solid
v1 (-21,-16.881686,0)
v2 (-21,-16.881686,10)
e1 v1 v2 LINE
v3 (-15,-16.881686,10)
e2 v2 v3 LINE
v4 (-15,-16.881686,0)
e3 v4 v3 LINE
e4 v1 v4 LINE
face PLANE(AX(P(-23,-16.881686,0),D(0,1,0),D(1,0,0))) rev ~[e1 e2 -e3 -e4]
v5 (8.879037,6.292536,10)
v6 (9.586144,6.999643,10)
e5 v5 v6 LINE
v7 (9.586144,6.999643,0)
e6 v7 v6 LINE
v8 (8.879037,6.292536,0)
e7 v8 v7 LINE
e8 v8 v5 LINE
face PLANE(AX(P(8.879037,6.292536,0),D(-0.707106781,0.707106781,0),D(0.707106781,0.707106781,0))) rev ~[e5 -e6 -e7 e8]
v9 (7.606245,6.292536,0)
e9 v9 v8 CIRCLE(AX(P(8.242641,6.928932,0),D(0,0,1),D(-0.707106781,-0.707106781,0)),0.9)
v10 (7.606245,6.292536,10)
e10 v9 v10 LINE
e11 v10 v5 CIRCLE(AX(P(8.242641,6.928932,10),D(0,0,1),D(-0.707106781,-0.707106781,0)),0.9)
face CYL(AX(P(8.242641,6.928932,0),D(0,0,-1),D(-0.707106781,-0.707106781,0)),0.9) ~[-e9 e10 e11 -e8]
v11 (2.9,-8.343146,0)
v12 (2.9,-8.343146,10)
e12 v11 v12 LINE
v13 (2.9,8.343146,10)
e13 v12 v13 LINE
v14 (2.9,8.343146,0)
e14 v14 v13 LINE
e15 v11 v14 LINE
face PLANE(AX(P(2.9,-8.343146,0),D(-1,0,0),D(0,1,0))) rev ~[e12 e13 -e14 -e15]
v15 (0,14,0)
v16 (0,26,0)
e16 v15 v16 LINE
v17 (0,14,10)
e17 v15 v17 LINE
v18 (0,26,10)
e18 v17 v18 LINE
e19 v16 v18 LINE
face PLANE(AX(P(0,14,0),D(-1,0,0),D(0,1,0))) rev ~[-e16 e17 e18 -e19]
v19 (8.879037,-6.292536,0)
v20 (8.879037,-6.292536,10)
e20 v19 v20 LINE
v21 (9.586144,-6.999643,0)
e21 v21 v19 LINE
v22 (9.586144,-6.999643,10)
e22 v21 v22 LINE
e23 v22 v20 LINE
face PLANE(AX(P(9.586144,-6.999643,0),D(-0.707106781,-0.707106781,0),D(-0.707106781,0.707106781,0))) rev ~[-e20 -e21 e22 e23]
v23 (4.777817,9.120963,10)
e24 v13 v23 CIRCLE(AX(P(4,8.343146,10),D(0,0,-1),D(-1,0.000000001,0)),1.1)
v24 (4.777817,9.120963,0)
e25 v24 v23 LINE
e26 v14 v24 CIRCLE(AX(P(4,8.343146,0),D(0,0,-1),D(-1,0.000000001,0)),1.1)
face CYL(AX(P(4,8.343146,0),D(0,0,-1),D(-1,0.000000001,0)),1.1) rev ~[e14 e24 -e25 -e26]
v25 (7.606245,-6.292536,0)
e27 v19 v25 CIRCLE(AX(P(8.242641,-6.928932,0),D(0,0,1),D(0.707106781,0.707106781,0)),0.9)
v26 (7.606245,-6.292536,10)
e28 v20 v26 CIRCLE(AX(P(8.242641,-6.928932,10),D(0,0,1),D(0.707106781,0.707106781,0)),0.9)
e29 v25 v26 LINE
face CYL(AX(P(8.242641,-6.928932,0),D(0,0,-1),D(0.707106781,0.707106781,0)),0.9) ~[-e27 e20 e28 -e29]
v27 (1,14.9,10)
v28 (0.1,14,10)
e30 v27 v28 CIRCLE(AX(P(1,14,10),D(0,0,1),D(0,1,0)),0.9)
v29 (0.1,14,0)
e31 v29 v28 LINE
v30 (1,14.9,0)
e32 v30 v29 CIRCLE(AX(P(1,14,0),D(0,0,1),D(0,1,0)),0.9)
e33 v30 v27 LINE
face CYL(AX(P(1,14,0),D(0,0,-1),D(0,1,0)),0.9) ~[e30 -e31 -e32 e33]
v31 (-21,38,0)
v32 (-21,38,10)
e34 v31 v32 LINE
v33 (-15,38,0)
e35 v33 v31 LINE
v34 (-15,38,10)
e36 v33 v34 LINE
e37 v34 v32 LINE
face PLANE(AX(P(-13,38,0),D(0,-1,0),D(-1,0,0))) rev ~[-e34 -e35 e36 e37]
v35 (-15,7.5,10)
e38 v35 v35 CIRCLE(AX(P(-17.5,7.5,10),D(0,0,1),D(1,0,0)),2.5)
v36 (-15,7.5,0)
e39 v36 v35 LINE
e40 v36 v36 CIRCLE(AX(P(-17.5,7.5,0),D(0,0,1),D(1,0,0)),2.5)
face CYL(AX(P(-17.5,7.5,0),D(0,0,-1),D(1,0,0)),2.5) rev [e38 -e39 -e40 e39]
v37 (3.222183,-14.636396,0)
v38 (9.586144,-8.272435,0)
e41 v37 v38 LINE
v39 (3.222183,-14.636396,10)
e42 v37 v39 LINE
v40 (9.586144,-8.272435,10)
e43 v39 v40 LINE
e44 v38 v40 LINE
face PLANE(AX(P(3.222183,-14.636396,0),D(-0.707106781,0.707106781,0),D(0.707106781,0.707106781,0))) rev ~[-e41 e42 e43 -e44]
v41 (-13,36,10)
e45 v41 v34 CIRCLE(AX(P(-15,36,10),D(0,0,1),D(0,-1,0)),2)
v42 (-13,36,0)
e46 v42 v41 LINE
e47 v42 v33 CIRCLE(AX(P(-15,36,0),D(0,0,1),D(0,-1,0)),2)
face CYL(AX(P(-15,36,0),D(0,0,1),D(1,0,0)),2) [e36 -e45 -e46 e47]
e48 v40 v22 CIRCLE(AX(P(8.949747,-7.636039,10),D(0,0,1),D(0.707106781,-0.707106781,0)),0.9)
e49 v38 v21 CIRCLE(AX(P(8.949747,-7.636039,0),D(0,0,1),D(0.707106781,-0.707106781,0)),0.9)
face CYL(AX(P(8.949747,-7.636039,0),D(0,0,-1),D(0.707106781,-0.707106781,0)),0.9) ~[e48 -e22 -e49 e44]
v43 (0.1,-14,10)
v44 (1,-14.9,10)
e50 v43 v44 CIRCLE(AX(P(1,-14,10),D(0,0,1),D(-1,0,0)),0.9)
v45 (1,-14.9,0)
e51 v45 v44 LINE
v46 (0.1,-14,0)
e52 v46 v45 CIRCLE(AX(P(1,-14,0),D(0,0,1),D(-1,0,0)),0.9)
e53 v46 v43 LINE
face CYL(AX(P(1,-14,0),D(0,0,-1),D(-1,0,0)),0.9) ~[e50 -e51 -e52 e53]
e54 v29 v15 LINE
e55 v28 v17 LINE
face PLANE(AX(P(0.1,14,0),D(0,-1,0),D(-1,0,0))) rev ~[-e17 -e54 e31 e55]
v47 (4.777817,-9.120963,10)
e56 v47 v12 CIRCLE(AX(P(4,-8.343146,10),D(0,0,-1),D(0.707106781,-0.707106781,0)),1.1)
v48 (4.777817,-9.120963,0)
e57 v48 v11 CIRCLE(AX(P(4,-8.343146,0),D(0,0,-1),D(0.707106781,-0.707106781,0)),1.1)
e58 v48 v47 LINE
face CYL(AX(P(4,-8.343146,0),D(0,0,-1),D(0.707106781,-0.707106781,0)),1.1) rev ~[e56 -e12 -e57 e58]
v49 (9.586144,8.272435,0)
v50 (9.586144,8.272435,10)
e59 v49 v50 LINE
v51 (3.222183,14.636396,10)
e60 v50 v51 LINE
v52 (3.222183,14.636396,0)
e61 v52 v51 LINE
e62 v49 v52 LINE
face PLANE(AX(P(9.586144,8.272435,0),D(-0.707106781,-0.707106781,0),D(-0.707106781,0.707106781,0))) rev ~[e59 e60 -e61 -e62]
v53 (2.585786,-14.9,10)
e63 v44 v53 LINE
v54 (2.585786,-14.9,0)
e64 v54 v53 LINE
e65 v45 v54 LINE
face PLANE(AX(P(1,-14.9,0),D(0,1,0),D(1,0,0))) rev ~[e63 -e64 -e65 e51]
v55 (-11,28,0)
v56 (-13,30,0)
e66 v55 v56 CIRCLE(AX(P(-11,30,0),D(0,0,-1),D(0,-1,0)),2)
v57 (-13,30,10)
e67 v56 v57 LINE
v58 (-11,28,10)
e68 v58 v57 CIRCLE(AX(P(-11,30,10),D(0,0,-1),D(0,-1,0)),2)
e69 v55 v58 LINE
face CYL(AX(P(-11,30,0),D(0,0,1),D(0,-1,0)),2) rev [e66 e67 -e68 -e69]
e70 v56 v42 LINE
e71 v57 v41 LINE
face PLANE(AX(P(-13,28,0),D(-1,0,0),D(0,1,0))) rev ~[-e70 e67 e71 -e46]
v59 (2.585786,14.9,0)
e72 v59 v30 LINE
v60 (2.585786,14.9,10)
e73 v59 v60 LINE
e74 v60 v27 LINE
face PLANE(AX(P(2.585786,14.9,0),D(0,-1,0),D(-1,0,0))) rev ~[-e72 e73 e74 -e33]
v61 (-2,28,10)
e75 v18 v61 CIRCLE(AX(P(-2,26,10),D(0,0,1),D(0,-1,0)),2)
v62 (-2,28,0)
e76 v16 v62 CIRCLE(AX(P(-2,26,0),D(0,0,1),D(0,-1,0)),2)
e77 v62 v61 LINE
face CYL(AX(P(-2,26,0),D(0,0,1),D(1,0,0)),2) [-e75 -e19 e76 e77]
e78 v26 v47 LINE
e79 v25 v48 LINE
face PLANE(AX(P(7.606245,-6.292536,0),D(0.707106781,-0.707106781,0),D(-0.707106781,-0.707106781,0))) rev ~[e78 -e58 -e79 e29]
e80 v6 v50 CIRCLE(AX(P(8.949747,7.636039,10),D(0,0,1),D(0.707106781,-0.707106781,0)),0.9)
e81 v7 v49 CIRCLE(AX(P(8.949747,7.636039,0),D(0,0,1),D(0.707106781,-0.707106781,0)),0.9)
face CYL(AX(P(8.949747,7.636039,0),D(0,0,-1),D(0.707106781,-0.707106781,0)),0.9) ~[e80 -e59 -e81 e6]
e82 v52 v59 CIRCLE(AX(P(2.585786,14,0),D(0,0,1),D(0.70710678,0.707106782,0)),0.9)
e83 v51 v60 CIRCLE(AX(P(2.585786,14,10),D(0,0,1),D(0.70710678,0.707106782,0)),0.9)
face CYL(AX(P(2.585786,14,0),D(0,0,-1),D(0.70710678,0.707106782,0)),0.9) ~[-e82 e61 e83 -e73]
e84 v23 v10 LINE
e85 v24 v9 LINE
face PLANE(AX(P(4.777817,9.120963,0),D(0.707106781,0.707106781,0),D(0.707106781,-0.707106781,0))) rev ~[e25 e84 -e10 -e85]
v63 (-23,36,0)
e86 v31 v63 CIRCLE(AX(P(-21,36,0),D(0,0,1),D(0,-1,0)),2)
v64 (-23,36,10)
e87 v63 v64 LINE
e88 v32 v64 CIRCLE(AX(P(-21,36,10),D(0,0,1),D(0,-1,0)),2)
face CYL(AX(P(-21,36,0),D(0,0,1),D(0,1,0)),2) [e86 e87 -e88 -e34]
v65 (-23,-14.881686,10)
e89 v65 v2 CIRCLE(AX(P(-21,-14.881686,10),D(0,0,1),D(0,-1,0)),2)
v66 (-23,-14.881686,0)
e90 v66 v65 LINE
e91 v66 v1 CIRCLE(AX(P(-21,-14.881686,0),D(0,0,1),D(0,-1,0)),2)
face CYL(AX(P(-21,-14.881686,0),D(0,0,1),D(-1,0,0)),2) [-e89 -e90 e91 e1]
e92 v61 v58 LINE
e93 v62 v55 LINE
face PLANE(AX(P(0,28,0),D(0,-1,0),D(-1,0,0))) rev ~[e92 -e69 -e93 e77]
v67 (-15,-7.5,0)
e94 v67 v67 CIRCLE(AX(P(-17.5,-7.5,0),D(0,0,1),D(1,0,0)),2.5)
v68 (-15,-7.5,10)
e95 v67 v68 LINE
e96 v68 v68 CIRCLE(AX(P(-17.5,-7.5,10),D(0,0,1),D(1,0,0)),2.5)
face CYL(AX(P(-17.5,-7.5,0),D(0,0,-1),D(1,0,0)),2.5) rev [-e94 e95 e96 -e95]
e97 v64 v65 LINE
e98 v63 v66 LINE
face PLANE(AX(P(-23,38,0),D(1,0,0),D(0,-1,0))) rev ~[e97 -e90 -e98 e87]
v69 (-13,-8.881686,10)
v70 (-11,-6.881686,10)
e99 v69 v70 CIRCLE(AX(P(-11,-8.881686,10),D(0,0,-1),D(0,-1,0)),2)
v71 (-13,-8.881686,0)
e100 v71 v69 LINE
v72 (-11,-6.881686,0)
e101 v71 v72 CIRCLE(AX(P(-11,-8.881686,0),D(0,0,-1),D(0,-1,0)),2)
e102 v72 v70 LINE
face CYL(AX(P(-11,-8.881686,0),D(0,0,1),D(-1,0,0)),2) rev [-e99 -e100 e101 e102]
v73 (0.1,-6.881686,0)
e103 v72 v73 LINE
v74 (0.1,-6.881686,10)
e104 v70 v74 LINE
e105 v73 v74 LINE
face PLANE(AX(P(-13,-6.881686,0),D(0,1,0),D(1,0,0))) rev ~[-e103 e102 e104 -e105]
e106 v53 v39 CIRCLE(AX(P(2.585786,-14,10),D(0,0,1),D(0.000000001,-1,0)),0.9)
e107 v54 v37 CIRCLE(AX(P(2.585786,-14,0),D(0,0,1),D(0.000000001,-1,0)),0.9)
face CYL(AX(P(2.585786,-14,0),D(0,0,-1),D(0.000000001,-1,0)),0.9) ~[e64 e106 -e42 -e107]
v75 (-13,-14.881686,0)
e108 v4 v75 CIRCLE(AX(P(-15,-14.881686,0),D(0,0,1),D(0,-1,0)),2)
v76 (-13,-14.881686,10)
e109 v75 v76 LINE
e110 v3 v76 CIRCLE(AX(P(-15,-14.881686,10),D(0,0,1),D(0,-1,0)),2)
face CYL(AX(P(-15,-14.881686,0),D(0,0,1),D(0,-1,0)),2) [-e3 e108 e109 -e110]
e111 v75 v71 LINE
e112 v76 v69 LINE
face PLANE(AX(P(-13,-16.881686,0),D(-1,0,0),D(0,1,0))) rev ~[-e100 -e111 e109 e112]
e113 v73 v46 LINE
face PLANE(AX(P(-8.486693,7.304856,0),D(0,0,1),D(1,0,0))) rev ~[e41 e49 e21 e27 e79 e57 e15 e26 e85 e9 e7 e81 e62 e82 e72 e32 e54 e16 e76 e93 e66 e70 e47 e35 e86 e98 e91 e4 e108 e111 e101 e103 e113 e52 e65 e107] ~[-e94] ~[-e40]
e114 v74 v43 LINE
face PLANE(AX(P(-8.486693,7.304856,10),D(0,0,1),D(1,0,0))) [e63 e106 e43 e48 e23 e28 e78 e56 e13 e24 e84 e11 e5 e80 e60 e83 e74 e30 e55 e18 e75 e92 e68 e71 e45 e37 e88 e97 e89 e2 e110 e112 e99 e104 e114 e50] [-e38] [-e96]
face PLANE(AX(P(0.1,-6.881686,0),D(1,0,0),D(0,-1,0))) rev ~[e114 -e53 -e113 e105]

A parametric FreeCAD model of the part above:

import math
import FreeCAD as App
import Part
import Sketcher


def edges_at(feature, points):
    """Names of the edges that pass closest to the given points."""
    edges = feature.Shape.Edges
    near = lambda p: min(range(len(edges)), key=lambda i: edges[i].distToShape(Part.Vertex(*p))[0])
    return sorted({f"Edge{near(p) + 1}" for p in points})

doc = App.newDocument("Part")
params = doc.addObject("Spreadsheet::Sheet", "Params")
for row, (alias, value) in enumerate([
    ("sketch1_diameter", "5 mm"),
    ("sketch1_radius", "0.9 mm"),
    ("sketch1_radius2", "1.1 mm"),
    ("sketch1_width", "13 mm"),
    ("sketch1_width2", "10 mm"),
    ("pad1_length", "10 mm"),
    ("fillet_radius", "2 mm"),
], start=1):
    params.set(f"A{row}", alias)
    params.set(f"B{row}", "=" + value)
    params.setAlias(f"B{row}", alias)

body = doc.addObject("PartDesign::Body", "Body")

# Sketch on XY plane
sketch1 = doc.addObject("Sketcher::SketchObject", "Sketch")
body.addObject(sketch1)
sketch1.AttachmentSupport = (doc.XY_Plane, [""])
sketch1.MapMode = "FlatFace"
sketch1.addGeometry(Part.LineSegment(App.Vector(0.1, 14, 0), App.Vector(0, 14, 0)), False)
sketch1.addGeometry(Part.LineSegment(App.Vector(0, 14, 0), App.Vector(0, 28, 0)), False)
sketch1.addGeometry(Part.LineSegment(App.Vector(0, 28, 0), App.Vector(-13, 28, 0)), False)
sketch1.addGeometry(Part.LineSegment(App.Vector(-13, 28, 0), App.Vector(-13, 38, 0)), False)
sketch1.addGeometry(Part.LineSegment(App.Vector(-13, 38, 0), App.Vector(-23, 38, 0)), False)
sketch1.addGeometry(Part.LineSegment(App.Vector(-23, 38, 0), App.Vector(-23, -16.88, 0)), False)
sketch1.addGeometry(Part.LineSegment(App.Vector(-23, -16.88, 0), App.Vector(-13, -16.88, 0)), False)
sketch1.addGeometry(Part.LineSegment(App.Vector(-13, -16.88, 0), App.Vector(-13, -6.88, 0)), False)
sketch1.addGeometry(Part.LineSegment(App.Vector(-13, -6.88, 0), App.Vector(0.1, -6.88, 0)), False)
sketch1.addGeometry(Part.LineSegment(App.Vector(0.1, -6.88, 0), App.Vector(0.1, -14, 0)), False)
sketch1.addGeometry(Part.ArcOfCircle(Part.Circle(App.Vector(1, -14, 0), App.Vector(0, 0, 1), 0.9), math.radians(180), math.radians(270)), False)
sketch1.addGeometry(Part.LineSegment(App.Vector(1, -14.9, 0), App.Vector(2.59, -14.9, 0)), False)
sketch1.addGeometry(Part.ArcOfCircle(Part.Circle(App.Vector(2.59, -14, 0), App.Vector(0, 0, 1), 0.9), math.radians(-90), math.radians(-45)), False)
sketch1.addGeometry(Part.LineSegment(App.Vector(3.22, -14.64, 0), App.Vector(9.59, -8.27, 0)), False)
sketch1.addGeometry(Part.ArcOfCircle(Part.Circle(App.Vector(8.95, -7.64, 0), App.Vector(0, 0, 1), 0.9), math.radians(-45), math.radians(45)), False)
sketch1.addGeometry(Part.LineSegment(App.Vector(9.59, -7, 0), App.Vector(8.88, -6.29, 0)), False)
sketch1.addGeometry(Part.ArcOfCircle(Part.Circle(App.Vector(8.24, -6.93, 0), App.Vector(0, 0, 1), 0.9), math.radians(45), math.radians(135)), False)
sketch1.addGeometry(Part.LineSegment(App.Vector(7.61, -6.29, 0), App.Vector(4.78, -9.12, 0)), False)
sketch1.addGeometry(Part.ArcOfCircle(Part.Circle(App.Vector(4, -8.34, 0), App.Vector(0, 0, 1), 1.1), math.radians(-180), math.radians(-45)), False)
sketch1.addGeometry(Part.LineSegment(App.Vector(2.9, -8.34, 0), App.Vector(2.9, 8.34, 0)), False)
sketch1.addGeometry(Part.ArcOfCircle(Part.Circle(App.Vector(4, 8.34, 0), App.Vector(0, 0, 1), 1.1), math.radians(45), math.radians(180)), False)
sketch1.addGeometry(Part.LineSegment(App.Vector(4.78, 9.12, 0), App.Vector(7.61, 6.29, 0)), False)
sketch1.addGeometry(Part.ArcOfCircle(Part.Circle(App.Vector(8.24, 6.93, 0), App.Vector(0, 0, 1), 0.9), math.radians(-135), math.radians(-45)), False)
sketch1.addGeometry(Part.LineSegment(App.Vector(8.88, 6.29, 0), App.Vector(9.59, 7, 0)), False)
sketch1.addGeometry(Part.ArcOfCircle(Part.Circle(App.Vector(8.95, 7.64, 0), App.Vector(0, 0, 1), 0.9), math.radians(-45), math.radians(45)), False)
sketch1.addGeometry(Part.LineSegment(App.Vector(9.59, 8.27, 0), App.Vector(3.22, 14.64, 0)), False)
sketch1.addGeometry(Part.ArcOfCircle(Part.Circle(App.Vector(2.59, 14, 0), App.Vector(0, 0, 1), 0.9), math.radians(45), math.radians(90)), False)
sketch1.addGeometry(Part.LineSegment(App.Vector(2.59, 14.9, 0), App.Vector(1, 14.9, 0)), False)
sketch1.addGeometry(Part.ArcOfCircle(Part.Circle(App.Vector(1, 14, 0), App.Vector(0, 0, 1), 0.9), math.radians(90), math.radians(180)), False)
sketch1.addGeometry(Part.Circle(App.Vector(-17.5, -7.5, 0), App.Vector(0, 0, 1), 2.5), False)
sketch1.addGeometry(Part.Circle(App.Vector(-17.5, 7.5, 0), App.Vector(0, 0, 1), 2.5), False)
sketch1.addConstraint(Sketcher.Constraint("Coincident", 0, 2, 1, 1))
sketch1.addConstraint(Sketcher.Constraint("Coincident", 1, 2, 2, 1))
sketch1.addConstraint(Sketcher.Constraint("Coincident", 2, 2, 3, 1))
sketch1.addConstraint(Sketcher.Constraint("Coincident", 3, 2, 4, 1))
sketch1.addConstraint(Sketcher.Constraint("Coincident", 4, 2, 5, 1))
sketch1.addConstraint(Sketcher.Constraint("Coincident", 5, 2, 6, 1))
sketch1.addConstraint(Sketcher.Constraint("Coincident", 6, 2, 7, 1))
sketch1.addConstraint(Sketcher.Constraint("Coincident", 7, 2, 8, 1))
sketch1.addConstraint(Sketcher.Constraint("Coincident", 8, 2, 9, 1))
sketch1.addConstraint(Sketcher.Constraint("Tangent", 9, 2, 10, 1))
sketch1.addConstraint(Sketcher.Constraint("Tangent", 10, 2, 11, 1))
sketch1.addConstraint(Sketcher.Constraint("Tangent", 11, 2, 12, 1))
sketch1.addConstraint(Sketcher.Constraint("Tangent", 12, 2, 13, 1))
sketch1.addConstraint(Sketcher.Constraint("Tangent", 13, 2, 14, 1))
sketch1.addConstraint(Sketcher.Constraint("Tangent", 14, 2, 15, 1))
sketch1.addConstraint(Sketcher.Constraint("Tangent", 15, 2, 16, 1))
sketch1.addConstraint(Sketcher.Constraint("Tangent", 16, 2, 17, 1))
sketch1.addConstraint(Sketcher.Constraint("Tangent", 17, 2, 18, 2))
sketch1.addConstraint(Sketcher.Constraint("Tangent", 18, 1, 19, 1))
sketch1.addConstraint(Sketcher.Constraint("Tangent", 19, 2, 20, 2))
sketch1.addConstraint(Sketcher.Constraint("Tangent", 20, 1, 21, 1))
sketch1.addConstraint(Sketcher.Constraint("Tangent", 21, 2, 22, 1))
sketch1.addConstraint(Sketcher.Constraint("Tangent", 22, 2, 23, 1))
sketch1.addConstraint(Sketcher.Constraint("Tangent", 23, 2, 24, 1))
sketch1.addConstraint(Sketcher.Constraint("Tangent", 24, 2, 25, 1))
sketch1.addConstraint(Sketcher.Constraint("Tangent", 25, 2, 26, 1))
sketch1.addConstraint(Sketcher.Constraint("Tangent", 26, 2, 27, 1))
sketch1.addConstraint(Sketcher.Constraint("Tangent", 27, 2, 28, 1))
sketch1.addConstraint(Sketcher.Constraint("Coincident", 28, 2, 0, 1))
sketch1.addConstraint(Sketcher.Constraint("Horizontal", 0))
sketch1.addConstraint(Sketcher.Constraint("Vertical", 1))
sketch1.addConstraint(Sketcher.Constraint("Horizontal", 2))
sketch1.addConstraint(Sketcher.Constraint("Vertical", 3))
sketch1.addConstraint(Sketcher.Constraint("Horizontal", 4))
sketch1.addConstraint(Sketcher.Constraint("Vertical", 5))
sketch1.addConstraint(Sketcher.Constraint("Horizontal", 6))
sketch1.addConstraint(Sketcher.Constraint("Vertical", 7))
sketch1.addConstraint(Sketcher.Constraint("Horizontal", 8))
sketch1.addConstraint(Sketcher.Constraint("Vertical", 9))
sketch1.addConstraint(Sketcher.Constraint("Horizontal", 11))
sketch1.addConstraint(Sketcher.Constraint("Vertical", 19))
sketch1.addConstraint(Sketcher.Constraint("Horizontal", 27))
sketch1.addConstraint(Sketcher.Constraint("Equal", 10, 12))
sketch1.addConstraint(Sketcher.Constraint("Equal", 12, 14))
sketch1.addConstraint(Sketcher.Constraint("Equal", 14, 16))
sketch1.addConstraint(Sketcher.Constraint("Equal", 18, 20))
sketch1.addConstraint(Sketcher.Constraint("Equal", 16, 22))
sketch1.addConstraint(Sketcher.Constraint("Equal", 22, 24))
sketch1.addConstraint(Sketcher.Constraint("Equal", 24, 26))
sketch1.addConstraint(Sketcher.Constraint("Equal", 26, 28))
sketch1.addConstraint(Sketcher.Constraint("Equal", 29, 30))
sketch1.addConstraint(Sketcher.Constraint("Symmetric", 16, 3, 22, 3, -1))
sketch1.addConstraint(Sketcher.Constraint("Symmetric", 14, 3, 24, 3, -1))
sketch1.addConstraint(Sketcher.Constraint("Symmetric", 12, 3, 26, 3, -1))
sketch1.addConstraint(Sketcher.Constraint("Symmetric", 29, 3, 30, 3, -1))
sketch1.addConstraint(Sketcher.Constraint("Symmetric", 9, 2, 28, 2, -1))
sketch1.addConstraint(Sketcher.Constraint("PointOnObject", 0, 2, -2))
sketch1.addConstraint(Sketcher.Constraint("Perpendicular", 13, 15))
sketch1.addConstraint(Sketcher.Constraint("Perpendicular", 15, 17))
sketch1.addConstraint(Sketcher.Constraint("Perpendicular", 17, 21))
sketch1.addConstraint(Sketcher.Constraint("Perpendicular", 21, 23))
sketch1.addConstraint(Sketcher.Constraint("Vertical", 3, 2, 6, 2))
sketch1.addConstraint(Sketcher.Constraint("Equal", 6, 3))
sketch1.addConstraint(Sketcher.Constraint("Equal", 3, 7))
sketch1.addConstraint(Sketcher.Constraint("Diameter", 29, 5.0))
sketch1.addConstraint(Sketcher.Constraint("Radius", 10, 0.9))
sketch1.addConstraint(Sketcher.Constraint("Radius", 18, 1.1))
sketch1.addConstraint(Sketcher.Constraint("DistanceX", 2, 2, 2, 1, 13.0))
sketch1.addConstraint(Sketcher.Constraint("DistanceX", 4, 2, 4, 1, 10.0))
sketch1.addConstraint(Sketcher.Constraint("DistanceY", 1, 1, 1, 2, 14.0))
sketch1.addConstraint(Sketcher.Constraint("Distance", 13, 9.0))
sketch1.addConstraint(Sketcher.Constraint("Distance", 15, 1.0))
sketch1.addConstraint(Sketcher.Constraint("Distance", 17, 4.0))
sketch1.addConstraint(Sketcher.Constraint("DistanceX", 0, 2, 0, 1, 0.1))
sketch1.addConstraint(Sketcher.Constraint("DistanceY", 10, 3, -1, 1, 14.0))
sketch1.addConstraint(Sketcher.Constraint("DistanceX", -1, 1, 18, 3, 4.0))
sketch1.addConstraint(Sketcher.Constraint("DistanceY", 29, 3, 30, 3, 15.0))
sketch1.addConstraint(Sketcher.Constraint("DistanceX", 29, 3, -1, 1, 17.5))
sketch1.addConstraint(Sketcher.Constraint("DistanceY", 5, 2, 5, 1, 54.881686))
sketch1.setExpression("Constraints[64]", "Params.sketch1_diameter")
sketch1.setExpression("Constraints[65]", "Params.sketch1_radius")
sketch1.setExpression("Constraints[66]", "Params.sketch1_radius2")
sketch1.setExpression("Constraints[67]", "Params.sketch1_width")
sketch1.setExpression("Constraints[68]", "Params.sketch1_width2")
pad1 = doc.addObject("PartDesign::Pad", "Pad")
body.addObject(pad1)
pad1.Profile = sketch1
pad1.setExpression("Length", "Params.pad1_length")
doc.recompute()

fillet = doc.addObject("PartDesign::Fillet", "Fillet")
body.addObject(fillet)
fillet.Base = (pad1, edges_at(pad1, [
    (-13, -6.882, 5),
    (-13, -16.882, 5),
    (-23, -16.882, 5),
    (-23, 38, 5),
    (-13, 38, 5),
    (-13, 28, 5),
    (0, 28, 5),
]))
fillet.setExpression("Radius", "Params.fillet_radius")

doc.recompute()
